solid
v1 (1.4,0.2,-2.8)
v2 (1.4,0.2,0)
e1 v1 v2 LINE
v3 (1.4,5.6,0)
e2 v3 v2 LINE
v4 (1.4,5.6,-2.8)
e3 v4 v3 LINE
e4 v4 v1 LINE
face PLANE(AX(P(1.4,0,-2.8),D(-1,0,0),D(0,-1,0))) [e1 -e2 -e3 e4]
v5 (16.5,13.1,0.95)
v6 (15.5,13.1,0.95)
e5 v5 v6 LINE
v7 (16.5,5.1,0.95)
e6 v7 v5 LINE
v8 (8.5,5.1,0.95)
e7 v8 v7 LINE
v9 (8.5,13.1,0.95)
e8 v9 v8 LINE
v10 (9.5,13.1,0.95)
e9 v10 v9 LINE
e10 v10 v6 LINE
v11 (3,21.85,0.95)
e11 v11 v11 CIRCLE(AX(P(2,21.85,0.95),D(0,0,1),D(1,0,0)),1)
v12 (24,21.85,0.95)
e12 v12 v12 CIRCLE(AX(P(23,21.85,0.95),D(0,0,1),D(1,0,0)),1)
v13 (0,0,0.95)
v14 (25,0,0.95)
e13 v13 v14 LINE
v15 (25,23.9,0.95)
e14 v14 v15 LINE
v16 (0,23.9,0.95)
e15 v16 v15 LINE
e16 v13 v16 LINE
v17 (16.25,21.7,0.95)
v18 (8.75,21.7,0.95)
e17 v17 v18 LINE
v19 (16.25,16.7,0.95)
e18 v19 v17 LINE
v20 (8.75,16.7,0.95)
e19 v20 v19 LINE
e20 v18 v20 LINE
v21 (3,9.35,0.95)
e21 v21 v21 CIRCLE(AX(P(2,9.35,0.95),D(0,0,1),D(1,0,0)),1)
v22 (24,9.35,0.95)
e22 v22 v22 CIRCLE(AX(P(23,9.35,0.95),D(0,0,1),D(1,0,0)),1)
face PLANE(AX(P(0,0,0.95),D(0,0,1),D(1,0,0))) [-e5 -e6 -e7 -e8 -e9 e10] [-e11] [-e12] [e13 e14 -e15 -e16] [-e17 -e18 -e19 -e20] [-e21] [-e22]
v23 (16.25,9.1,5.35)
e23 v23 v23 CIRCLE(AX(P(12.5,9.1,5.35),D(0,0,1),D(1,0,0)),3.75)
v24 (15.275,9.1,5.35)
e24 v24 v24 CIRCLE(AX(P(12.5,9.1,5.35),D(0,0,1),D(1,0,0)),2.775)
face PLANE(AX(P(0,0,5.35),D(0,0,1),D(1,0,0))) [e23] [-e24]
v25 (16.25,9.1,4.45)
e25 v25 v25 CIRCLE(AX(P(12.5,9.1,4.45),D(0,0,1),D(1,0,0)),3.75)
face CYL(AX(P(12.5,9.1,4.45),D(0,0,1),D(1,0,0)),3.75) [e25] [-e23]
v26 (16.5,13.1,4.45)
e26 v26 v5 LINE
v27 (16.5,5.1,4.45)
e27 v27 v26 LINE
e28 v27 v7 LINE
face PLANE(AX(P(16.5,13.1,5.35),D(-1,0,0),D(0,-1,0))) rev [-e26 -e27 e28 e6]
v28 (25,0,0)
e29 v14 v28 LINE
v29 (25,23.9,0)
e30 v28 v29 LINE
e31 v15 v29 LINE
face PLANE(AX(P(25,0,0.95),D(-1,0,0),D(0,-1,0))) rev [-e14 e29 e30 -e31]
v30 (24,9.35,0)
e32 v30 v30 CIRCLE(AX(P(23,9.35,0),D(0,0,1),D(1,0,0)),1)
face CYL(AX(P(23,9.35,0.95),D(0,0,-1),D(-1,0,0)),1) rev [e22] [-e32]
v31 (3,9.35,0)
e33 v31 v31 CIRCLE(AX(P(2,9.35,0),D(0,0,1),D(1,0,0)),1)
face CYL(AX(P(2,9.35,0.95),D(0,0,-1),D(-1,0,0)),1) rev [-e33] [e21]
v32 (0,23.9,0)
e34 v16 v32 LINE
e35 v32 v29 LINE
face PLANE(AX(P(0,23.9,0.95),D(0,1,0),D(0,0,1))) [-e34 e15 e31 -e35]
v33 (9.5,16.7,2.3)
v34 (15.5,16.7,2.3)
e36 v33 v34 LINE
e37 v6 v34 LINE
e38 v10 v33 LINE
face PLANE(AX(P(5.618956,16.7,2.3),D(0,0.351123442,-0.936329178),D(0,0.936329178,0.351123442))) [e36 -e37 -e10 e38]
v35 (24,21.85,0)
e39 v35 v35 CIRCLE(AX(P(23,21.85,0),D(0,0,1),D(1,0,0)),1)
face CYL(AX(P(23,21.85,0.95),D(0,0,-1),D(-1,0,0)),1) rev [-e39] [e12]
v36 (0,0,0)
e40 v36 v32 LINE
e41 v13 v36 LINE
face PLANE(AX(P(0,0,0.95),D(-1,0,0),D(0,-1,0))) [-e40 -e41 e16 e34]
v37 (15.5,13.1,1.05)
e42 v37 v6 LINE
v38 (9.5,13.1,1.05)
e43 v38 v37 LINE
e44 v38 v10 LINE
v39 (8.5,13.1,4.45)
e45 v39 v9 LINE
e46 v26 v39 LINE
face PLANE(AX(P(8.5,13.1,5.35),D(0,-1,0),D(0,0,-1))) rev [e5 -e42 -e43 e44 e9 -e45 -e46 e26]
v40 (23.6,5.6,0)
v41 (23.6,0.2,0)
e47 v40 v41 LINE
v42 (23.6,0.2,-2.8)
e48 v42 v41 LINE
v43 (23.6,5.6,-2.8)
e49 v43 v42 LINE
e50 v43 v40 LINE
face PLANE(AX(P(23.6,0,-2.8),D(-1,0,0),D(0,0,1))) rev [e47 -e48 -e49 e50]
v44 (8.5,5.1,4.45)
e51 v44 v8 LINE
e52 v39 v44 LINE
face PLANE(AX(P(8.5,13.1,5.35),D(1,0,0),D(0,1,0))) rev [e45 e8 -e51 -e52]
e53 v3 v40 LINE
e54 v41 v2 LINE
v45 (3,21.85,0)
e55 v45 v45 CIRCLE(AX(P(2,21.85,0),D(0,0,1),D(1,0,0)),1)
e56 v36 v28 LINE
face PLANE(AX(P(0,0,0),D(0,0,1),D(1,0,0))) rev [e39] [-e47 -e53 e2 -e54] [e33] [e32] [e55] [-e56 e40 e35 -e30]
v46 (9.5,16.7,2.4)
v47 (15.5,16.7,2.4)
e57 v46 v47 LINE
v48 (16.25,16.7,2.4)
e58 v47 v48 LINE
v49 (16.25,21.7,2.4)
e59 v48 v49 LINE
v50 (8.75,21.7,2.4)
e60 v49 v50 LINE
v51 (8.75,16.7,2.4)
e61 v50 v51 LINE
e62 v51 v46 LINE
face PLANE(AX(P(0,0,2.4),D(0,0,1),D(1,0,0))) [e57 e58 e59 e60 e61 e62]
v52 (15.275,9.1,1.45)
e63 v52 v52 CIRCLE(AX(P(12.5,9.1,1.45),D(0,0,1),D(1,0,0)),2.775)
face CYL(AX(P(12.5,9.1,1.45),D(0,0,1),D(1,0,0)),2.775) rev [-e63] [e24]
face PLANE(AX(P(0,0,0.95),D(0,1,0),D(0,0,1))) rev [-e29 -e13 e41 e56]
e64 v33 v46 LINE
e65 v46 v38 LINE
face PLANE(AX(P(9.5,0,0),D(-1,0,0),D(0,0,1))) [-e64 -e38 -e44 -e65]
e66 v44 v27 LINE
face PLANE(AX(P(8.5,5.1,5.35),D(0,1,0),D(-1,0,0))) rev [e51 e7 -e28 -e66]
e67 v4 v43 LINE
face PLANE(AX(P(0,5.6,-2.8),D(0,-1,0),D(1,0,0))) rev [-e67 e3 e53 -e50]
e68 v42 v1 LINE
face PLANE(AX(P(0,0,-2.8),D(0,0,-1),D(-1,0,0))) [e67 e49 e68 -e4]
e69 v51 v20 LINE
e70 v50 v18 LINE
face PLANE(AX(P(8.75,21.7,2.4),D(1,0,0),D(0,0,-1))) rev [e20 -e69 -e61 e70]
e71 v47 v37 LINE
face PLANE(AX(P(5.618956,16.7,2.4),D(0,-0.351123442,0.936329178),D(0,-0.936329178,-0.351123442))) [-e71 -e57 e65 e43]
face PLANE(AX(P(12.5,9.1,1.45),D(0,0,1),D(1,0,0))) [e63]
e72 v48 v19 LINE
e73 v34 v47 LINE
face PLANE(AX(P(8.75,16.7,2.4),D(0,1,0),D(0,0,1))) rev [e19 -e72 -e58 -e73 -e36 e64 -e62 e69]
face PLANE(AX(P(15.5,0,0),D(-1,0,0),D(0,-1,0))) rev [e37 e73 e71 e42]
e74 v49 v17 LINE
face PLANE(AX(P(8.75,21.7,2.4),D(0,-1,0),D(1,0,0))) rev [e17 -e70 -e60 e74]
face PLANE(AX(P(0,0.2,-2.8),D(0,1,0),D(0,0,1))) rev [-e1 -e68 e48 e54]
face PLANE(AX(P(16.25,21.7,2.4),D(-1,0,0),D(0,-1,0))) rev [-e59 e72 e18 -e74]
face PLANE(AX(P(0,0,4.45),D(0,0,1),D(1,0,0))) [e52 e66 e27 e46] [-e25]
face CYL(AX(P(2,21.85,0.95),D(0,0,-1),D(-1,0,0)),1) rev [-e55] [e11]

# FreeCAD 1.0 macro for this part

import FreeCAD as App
import Part
import Sketcher

V = App.Vector

doc = App.newDocument("Part")
body = doc.addObject("PartDesign::Body", "Body")

# Sketch on XY plane
sketch1 = body.newObject("Sketcher::SketchObject", "Sketch")
sketch1.AttachmentSupport = (doc.getObject("XY_Plane"), [""])
sketch1.MapMode = "FlatFace"
sketch1.addGeometry(Part.LineSegment(V(0, 23.9, 0), V(0, 0, 0)), False)
sketch1.addGeometry(Part.LineSegment(V(0, 0, 0), V(25, 0, 0)), False)
sketch1.addGeometry(Part.LineSegment(V(25, 0, 0), V(25, 23.9, 0)), False)
sketch1.addGeometry(Part.LineSegment(V(25, 23.9, 0), V(0, 23.9, 0)), False)
sketch1.addGeometry(Part.Circle(V(2, 9.3, 0), V(0, 0, 1), 1), False)
sketch1.addGeometry(Part.Circle(V(23, 9.3, 0), V(0, 0, 1), 1), False)
sketch1.addGeometry(Part.Circle(V(2, 21.9, 0), V(0, 0, 1), 1), False)
sketch1.addGeometry(Part.Circle(V(23, 21.9, 0), V(0, 0, 1), 1), False)
sketch1.addConstraint(Sketcher.Constraint("Coincident", 0, 2, 1, 1))
sketch1.addConstraint(Sketcher.Constraint("Coincident", 1, 2, 2, 1))
sketch1.addConstraint(Sketcher.Constraint("Coincident", 2, 2, 3, 1))
sketch1.addConstraint(Sketcher.Constraint("Coincident", 3, 2, 0, 1))
sketch1.addConstraint(Sketcher.Constraint("Vertical", 0))
sketch1.addConstraint(Sketcher.Constraint("Horizontal", 1))
sketch1.addConstraint(Sketcher.Constraint("Vertical", 2))
sketch1.addConstraint(Sketcher.Constraint("Horizontal", 3))
sketch1.addConstraint(Sketcher.Constraint("Coincident", 0, 2, -1, 1))
sketch1.addConstraint(Sketcher.Constraint("Equal", 4, 5))
sketch1.addConstraint(Sketcher.Constraint("Equal", 5, 6))
sketch1.addConstraint(Sketcher.Constraint("Equal", 6, 7))
sketch1.addConstraint(Sketcher.Constraint("Horizontal", 4, 3, 5, 3))
sketch1.addConstraint(Sketcher.Constraint("Horizontal", 6, 3, 7, 3))
sketch1.addConstraint(Sketcher.Constraint("Vertical", 4, 3, 6, 3))
sketch1.addConstraint(Sketcher.Constraint("Vertical", 5, 3, 7, 3))
sketch1.addConstraint(Sketcher.Constraint("Diameter", 4, 2.0))
sketch1.addConstraint(Sketcher.Constraint("DistanceX", 1, 1, 1, 2, 25.0))
sketch1.addConstraint(Sketcher.Constraint("DistanceY", 0, 2, 0, 1, 23.9))
sketch1.addConstraint(Sketcher.Constraint("DistanceX", -1, 1, 4, 3, 2.0))
sketch1.addConstraint(Sketcher.Constraint("DistanceX", -1, 1, 5, 3, 23.0))
sketch1.addConstraint(Sketcher.Constraint("DistanceY", 4, 3, 6, 3, 12.5))
sketch1.addConstraint(Sketcher.Constraint("DistanceY", -1, 1, 4, 3, 9.35))
pad1 = body.newObject("PartDesign::Pad", "Pad")
pad1.Profile = sketch1
pad1.Length = 0.95

# Sketch on XY plane
sketch2 = body.newObject("Sketcher::SketchObject", "Sketch001")
sketch2.AttachmentSupport = (doc.getObject("XY_Plane"), [""])
sketch2.MapMode = "FlatFace"
sketch2.AttachmentOffset = App.Placement(V(0, 0, 0.95), App.Rotation())
sketch2.addGeometry(Part.LineSegment(V(9, 22, 0), V(9, 17, 0)), False)
sketch2.addGeometry(Part.LineSegment(V(9, 17, 0), V(16, 17, 0)), False)
sketch2.addGeometry(Part.LineSegment(V(16, 17, 0), V(16, 22, 0)), False)
sketch2.addGeometry(Part.LineSegment(V(16, 22, 0), V(9, 22, 0)), False)
sketch2.addConstraint(Sketcher.Constraint("Coincident", 0, 2, 1, 1))
sketch2.addConstraint(Sketcher.Constraint("Coincident", 1, 2, 2, 1))
sketch2.addConstraint(Sketcher.Constraint("Coincident", 2, 2, 3, 1))
sketch2.addConstraint(Sketcher.Constraint("Coincident", 3, 2, 0, 1))
sketch2.addConstraint(Sketcher.Constraint("Vertical", 0))
sketch2.addConstraint(Sketcher.Constraint("Horizontal", 1))
sketch2.addConstraint(Sketcher.Constraint("Vertical", 2))
sketch2.addConstraint(Sketcher.Constraint("Horizontal", 3))
sketch2.addConstraint(Sketcher.Constraint("DistanceY", 0, 2, 0, 1, 5.0))
sketch2.addConstraint(Sketcher.Constraint("DistanceX", 1, 1, 1, 2, 7.5))
sketch2.addConstraint(Sketcher.Constraint("DistanceY", -1, 1, 0, 2, 16.7))
sketch2.addConstraint(Sketcher.Constraint("DistanceX", -1, 1, 0, 2, 8.75))
pad2 = body.newObject("PartDesign::Pad", "Pad001")
pad2.Profile = sketch2
pad2.Length = 1.45

# Sketch on XY plane
sketch3 = body.newObject("Sketcher::SketchObject", "Sketch002")
sketch3.AttachmentSupport = (doc.getObject("XY_Plane"), [""])
sketch3.MapMode = "FlatFace"
sketch3.AttachmentOffset = App.Placement(V(0, 0, 0.95), App.Rotation())
sketch3.addGeometry(Part.LineSegment(V(8, 13, 0), V(8, 5, 0)), False)
sketch3.addGeometry(Part.LineSegment(V(8, 5, 0), V(16, 5, 0)), False)
sketch3.addGeometry(Part.LineSegment(V(16, 5, 0), V(16, 13, 0)), False)
sketch3.addGeometry(Part.LineSegment(V(16, 13, 0), V(8, 13, 0)), False)
sketch3.addConstraint(Sketcher.Constraint("Coincident", 0, 2, 1, 1))
sketch3.addConstraint(Sketcher.Constraint("Coincident", 1, 2, 2, 1))
sketch3.addConstraint(Sketcher.Constraint("Coincident", 2, 2, 3, 1))
sketch3.addConstraint(Sketcher.Constraint("Coincident", 3, 2, 0, 1))
sketch3.addConstraint(Sketcher.Constraint("Vertical", 0))
sketch3.addConstraint(Sketcher.Constraint("Horizontal", 1))
sketch3.addConstraint(Sketcher.Constraint("Vertical", 2))
sketch3.addConstraint(Sketcher.Constraint("Horizontal", 3))
sketch3.addConstraint(Sketcher.Constraint("Equal", 3, 0))
sketch3.addConstraint(Sketcher.Constraint("DistanceX", 1, 1, 1, 2, 8.0))
sketch3.addConstraint(Sketcher.Constraint("DistanceX", -1, 1, 0, 2, 8.5))
sketch3.addConstraint(Sketcher.Constraint("DistanceY", -1, 1, 0, 2, 5.1))
pad3 = body.newObject("PartDesign::Pad", "Pad002")
pad3.Profile = sketch3
pad3.Length = 4.4

# Sketch on XY plane
sketch4 = body.newObject("Sketcher::SketchObject", "Sketch003")
sketch4.AttachmentSupport = (doc.getObject("XY_Plane"), [""])
sketch4.MapMode = "FlatFace"
sketch4.AttachmentOffset = App.Placement(V(0, 0, 5.35), App.Rotation())
sketch4.addGeometry(Part.LineSegment(V(8.5, 13.1, 0), V(8.5, 5.1, 0)), False)
sketch4.addGeometry(Part.LineSegment(V(8.5, 5.1, 0), V(16.5, 5.1, 0)), False)
sketch4.addGeometry(Part.LineSegment(V(16.5, 5.1, 0), V(16.5, 13.1, 0)), False)
sketch4.addGeometry(Part.LineSegment(V(16.5, 13.1, 0), V(8.5, 13.1, 0)), False)
sketch4.addGeometry(Part.Circle(V(12.5, 9.1, 0), V(0, 0, 1), 3.8), False)
sketch4.addConstraint(Sketcher.Constraint("Coincident", 0, 2, 1, 1))
sketch4.addConstraint(Sketcher.Constraint("Coincident", 1, 2, 2, 1))
sketch4.addConstraint(Sketcher.Constraint("Coincident", 2, 2, 3, 1))
sketch4.addConstraint(Sketcher.Constraint("Coincident", 3, 2, 0, 1))
sketch4.addConstraint(Sketcher.Constraint("Vertical", 0))
sketch4.addConstraint(Sketcher.Constraint("Horizontal", 1))
sketch4.addConstraint(Sketcher.Constraint("Vertical", 2))
sketch4.addConstraint(Sketcher.Constraint("Horizontal", 3))
sketch4.addConstraint(Sketcher.Constraint("Equal", 3, 0))
sketch4.addConstraint(Sketcher.Constraint("Diameter", 4, 7.5))
sketch4.addConstraint(Sketcher.Constraint("DistanceX", 1, 1, 1, 2, 8.0))
sketch4.addConstraint(Sketcher.Constraint("DistanceX", 0, 2, 4, 3, 4.0))
sketch4.addConstraint(Sketcher.Constraint("DistanceY", 0, 2, 4, 3, 4.0))
sketch4.addConstraint(Sketcher.Constraint("DistanceX", -1, 1, 4, 3, 12.5))
sketch4.addConstraint(Sketcher.Constraint("DistanceY", -1, 1, 4, 3, 9.1))
pocket1 = body.newObject("PartDesign::Pocket", "Pocket")
pocket1.Profile = sketch4
pocket1.Length = 0.9

# Sketch on XY plane
sketch5 = body.newObject("Sketcher::SketchObject", "Sketch004")
sketch5.AttachmentSupport = (doc.getObject("XY_Plane"), [""])
sketch5.MapMode = "FlatFace"
sketch5.AttachmentOffset = App.Placement(V(0, 0, 5.35), App.Rotation())
sketch5.addGeometry(Part.Circle(V(12.5, 9.1, 0), V(0, 0, 1), 2.8), False)
sketch5.addConstraint(Sketcher.Constraint("Diameter", 0, 5.55))
sketch5.addConstraint(Sketcher.Constraint("DistanceX", -1, 1, 0, 3, 12.5))
sketch5.addConstraint(Sketcher.Constraint("DistanceY", -1, 1, 0, 3, 9.1))
pocket2 = body.newObject("PartDesign::Pocket", "Pocket001")
pocket2.Profile = sketch5
pocket2.Length = 3.9

# Sketch on YZ plane
sketch6 = body.newObject("Sketcher::SketchObject", "Sketch005")
sketch6.AttachmentSupport = (doc.getObject("YZ_Plane"), [""])
sketch6.MapMode = "FlatFace"
sketch6.AttachmentOffset = App.Placement(V(0, 0, 15.5), App.Rotation())
sketch6.addGeometry(Part.LineSegment(V(16.7, 2.3, 0), V(16.7, 2.4, 0)), False)
sketch6.addGeometry(Part.LineSegment(V(16.7, 2.4, 0), V(13.1, 1.05, 0)), False)
sketch6.addGeometry(Part.LineSegment(V(13.1, 1.05, 0), V(13.1, 0.95, 0)), False)
sketch6.addGeometry(Part.LineSegment(V(13.1, 0.95, 0), V(16.7, 2.3, 0)), False)
sketch6.addConstraint(Sketcher.Constraint("Coincident", 0, 2, 1, 1))
sketch6.addConstraint(Sketcher.Constraint("Coincident", 1, 2, 2, 1))
sketch6.addConstraint(Sketcher.Constraint("Coincident", 2, 2, 3, 1))
sketch6.addConstraint(Sketcher.Constraint("Coincident", 3, 2, 0, 1))
sketch6.addConstraint(Sketcher.Constraint("Vertical", 0))
sketch6.addConstraint(Sketcher.Constraint("Vertical", 2))
sketch6.addConstraint(Sketcher.Constraint("Parallel", 1, 3))
sketch6.addConstraint(Sketcher.Constraint("DistanceY", 0, 1, 0, 2, 0.1))
sketch6.addConstraint(Sketcher.Constraint("DistanceX", -1, 1, 0, 2, 16.7))
sketch6.addConstraint(Sketcher.Constraint("DistanceY", -1, 1, 0, 2, 2.4))
sketch6.addConstraint(Sketcher.Constraint("DistanceX", -1, 1, 1, 2, 13.1))
sketch6.addConstraint(Sketcher.Constraint("DistanceY", -1, 1, 1, 2, 1.05))
pad4 = body.newObject("PartDesign::Pad", "Pad003")
pad4.Profile = sketch6
pad4.Length = 6
pad4.Reversed = True

# Sketch on XY plane
sketch7 = body.newObject("Sketcher::SketchObject", "Sketch006")
sketch7.AttachmentSupport = (doc.getObject("XY_Plane"), [""])
sketch7.MapMode = "FlatFace"
sketch7.addGeometry(Part.LineSegment(V(1, 6, 0), V(24, 6, 0)), False)
sketch7.addGeometry(Part.LineSegment(V(24, 6, 0), V(24, 0, 0)), False)
sketch7.addGeometry(Part.LineSegment(V(24, 0, 0), V(1, 0, 0)), False)
sketch7.addGeometry(Part.LineSegment(V(1, 0, 0), V(1, 6, 0)), False)
sketch7.addConstraint(Sketcher.Constraint("Coincident", 0, 2, 1, 1))
sketch7.addConstraint(Sketcher.Constraint("Coincident", 1, 2, 2, 1))
sketch7.addConstraint(Sketcher.Constraint("Coincident", 2, 2, 3, 1))
sketch7.addConstraint(Sketcher.Constraint("Coincident", 3, 2, 0, 1))
sketch7.addConstraint(Sketcher.Constraint("Horizontal", 0))
sketch7.addConstraint(Sketcher.Constraint("Vertical", 1))
sketch7.addConstraint(Sketcher.Constraint("Horizontal", 2))
sketch7.addConstraint(Sketcher.Constraint("Vertical", 3))
sketch7.addConstraint(Sketcher.Constraint("DistanceX", 0, 1, 0, 2, 22.2))
sketch7.addConstraint(Sketcher.Constraint("DistanceY", 1, 2, 1, 1, 5.4))
sketch7.addConstraint(Sketcher.Constraint("DistanceX", -1, 1, 0, 2, 23.6))
sketch7.addConstraint(Sketcher.Constraint("DistanceY", -1, 1, 0, 2, 5.6))
pad5 = body.newObject("PartDesign::Pad", "Pad004")
pad5.Profile = sketch7
pad5.Length = 2.8
pad5.Reversed = True

doc.recompute()
